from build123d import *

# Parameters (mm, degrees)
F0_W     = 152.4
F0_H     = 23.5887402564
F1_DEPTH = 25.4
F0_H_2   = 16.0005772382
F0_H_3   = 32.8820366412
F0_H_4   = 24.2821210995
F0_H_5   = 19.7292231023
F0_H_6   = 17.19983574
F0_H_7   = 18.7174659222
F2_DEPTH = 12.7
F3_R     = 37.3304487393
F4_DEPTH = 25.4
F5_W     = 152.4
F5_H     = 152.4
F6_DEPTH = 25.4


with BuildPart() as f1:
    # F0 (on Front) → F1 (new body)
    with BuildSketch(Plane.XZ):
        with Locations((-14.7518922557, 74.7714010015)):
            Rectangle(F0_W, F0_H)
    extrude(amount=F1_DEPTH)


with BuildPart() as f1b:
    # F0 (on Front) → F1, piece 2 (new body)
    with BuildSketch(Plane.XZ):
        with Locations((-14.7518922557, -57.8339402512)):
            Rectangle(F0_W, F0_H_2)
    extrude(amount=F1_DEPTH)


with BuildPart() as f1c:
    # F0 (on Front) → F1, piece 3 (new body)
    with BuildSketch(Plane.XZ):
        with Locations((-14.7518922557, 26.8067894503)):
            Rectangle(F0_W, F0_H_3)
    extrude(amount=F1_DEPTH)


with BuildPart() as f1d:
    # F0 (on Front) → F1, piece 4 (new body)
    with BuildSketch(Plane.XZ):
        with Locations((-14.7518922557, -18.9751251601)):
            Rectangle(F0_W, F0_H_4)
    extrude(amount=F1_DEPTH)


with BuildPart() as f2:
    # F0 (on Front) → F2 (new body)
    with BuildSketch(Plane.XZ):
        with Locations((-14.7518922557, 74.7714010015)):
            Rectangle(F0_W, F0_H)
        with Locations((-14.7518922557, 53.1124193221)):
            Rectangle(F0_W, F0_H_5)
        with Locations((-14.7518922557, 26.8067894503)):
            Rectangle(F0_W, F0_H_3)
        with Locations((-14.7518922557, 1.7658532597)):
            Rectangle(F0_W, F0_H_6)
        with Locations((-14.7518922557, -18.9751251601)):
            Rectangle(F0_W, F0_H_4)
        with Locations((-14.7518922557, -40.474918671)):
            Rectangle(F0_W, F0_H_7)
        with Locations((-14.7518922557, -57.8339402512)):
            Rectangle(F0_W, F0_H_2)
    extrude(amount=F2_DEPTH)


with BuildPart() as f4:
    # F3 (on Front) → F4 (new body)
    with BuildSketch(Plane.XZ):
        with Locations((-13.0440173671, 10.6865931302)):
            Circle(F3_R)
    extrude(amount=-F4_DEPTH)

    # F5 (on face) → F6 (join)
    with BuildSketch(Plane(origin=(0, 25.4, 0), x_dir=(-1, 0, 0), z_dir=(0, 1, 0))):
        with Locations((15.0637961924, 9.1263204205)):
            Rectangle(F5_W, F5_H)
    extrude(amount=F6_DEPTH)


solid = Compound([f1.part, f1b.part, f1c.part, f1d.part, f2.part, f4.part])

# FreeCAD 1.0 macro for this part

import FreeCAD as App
import Part
import Sketcher

V = App.Vector
Q = App.Units.Quantity


def add_polygon(sketch, points):
    """Adds a closed chain of lines whose ends are joined by coincident constraints."""
    first, n = sketch.GeometryCount, len(points)
    for a, b in zip(points, points[1:] + points[:1]):
        sketch.addGeometry(Part.LineSegment(App.Vector(*a, 0), App.Vector(*b, 0)), False)
    for i in range(n):
        sketch.addConstraint(Sketcher.Constraint("Coincident", first + i, 2, first + (i + 1) % n, 1))

doc = App.newDocument("Part")
params = doc.addObject("Spreadsheet::Sheet", "Params")
for row, (alias, value) in enumerate([
    ("sketch1_width", "6 in"),
    ("pad1_length", "1 in"),
    ("sketch2_width", "6 in"),
    ("pad2_length", "1 in"),
    ("sketch3_width", "6 in"),
    ("pad3_length", "1 in"),
    ("sketch4_width", "6 in"),
    ("pad4_length", "1 in"),
    ("sketch5_width", "6 in"),
    ("pad5_length", "0.5 in"),
    ("pad6_length", "1 in"),
    ("sketch7_width", "6 in"),
    ("pad7_length", "1 in"),
], start=1):
    params.set(f"A{row}", alias)
    params.set(f"B{row}", "=" + value)
    params.setAlias(f"B{row}", alias)

body = doc.addObject("PartDesign::Body", "Body")

# Sketch on XZ plane
sketch1 = doc.addObject("Sketcher::SketchObject", "Sketch")
body.addObject(sketch1)
sketch1.AttachmentSupport = (doc.XZ_Plane, [""])
sketch1.MapMode = "FlatFace"
add_polygon(sketch1, [(-91, 87), (-91, 63), (61, 63), (61, 87)])  # lines 0-3
sketch1.addConstraint(Sketcher.Constraint("Vertical", 0))
sketch1.addConstraint(Sketcher.Constraint("Horizontal", 1))
sketch1.addConstraint(Sketcher.Constraint("Vertical", 2))
sketch1.addConstraint(Sketcher.Constraint("Horizontal", 3))
sketch1.addConstraint(Sketcher.Constraint("DistanceX", 1, 1, 1, 2, Q("6 in")))
sketch1.addConstraint(Sketcher.Constraint("DistanceY", 0, 2, 0, 1, 23.58874))
sketch1.addConstraint(Sketcher.Constraint("DistanceY", -1, 1, 0, 2, 62.977031))
sketch1.addConstraint(Sketcher.Constraint("DistanceX", 0, 2, -1, 1, 90.951892))
sketch1.setExpression("Constraints[8]", "Params.sketch1_width")
pad1 = doc.addObject("PartDesign::Pad", "Pad")
body.addObject(pad1)
pad1.Profile = sketch1
pad1.setExpression("Length", "Params.pad1_length")
body2 = doc.addObject("PartDesign::Body", "Body001")

# Sketch on XZ plane
sketch2 = doc.addObject("Sketcher::SketchObject", "Sketch001")
body2.addObject(sketch2)
sketch2.AttachmentSupport = (doc.getObject("XZ_Plane001"), [""])
sketch2.MapMode = "FlatFace"
add_polygon(sketch2, [(-91, -50), (-91, -66), (61, -66), (61, -50)])  # lines 0-3
sketch2.addConstraint(Sketcher.Constraint("Vertical", 0))
sketch2.addConstraint(Sketcher.Constraint("Horizontal", 1))
sketch2.addConstraint(Sketcher.Constraint("Vertical", 2))
sketch2.addConstraint(Sketcher.Constraint("Horizontal", 3))
sketch2.addConstraint(Sketcher.Constraint("DistanceX", 1, 1, 1, 2, Q("6 in")))
sketch2.addConstraint(Sketcher.Constraint("DistanceY", 0, 2, 0, 1, 16.000577))
sketch2.addConstraint(Sketcher.Constraint("DistanceY", 0, 2, -1, 1, 65.834229))
sketch2.addConstraint(Sketcher.Constraint("DistanceX", 0, 2, -1, 1, 90.951892))
sketch2.setExpression("Constraints[8]", "Params.sketch2_width")
pad2 = doc.addObject("PartDesign::Pad", "Pad001")
body2.addObject(pad2)
pad2.Profile = sketch2
pad2.setExpression("Length", "Params.pad2_length")
body3 = doc.addObject("PartDesign::Body", "Body002")

# Sketch on XZ plane
sketch3 = doc.addObject("Sketcher::SketchObject", "Sketch002")
body3.addObject(sketch3)
sketch3.AttachmentSupport = (doc.getObject("XZ_Plane002"), [""])
sketch3.MapMode = "FlatFace"
add_polygon(sketch3, [(-91, 43), (-91, 10), (61, 10), (61, 43)])  # lines 0-3
sketch3.addConstraint(Sketcher.Constraint("Vertical", 0))
sketch3.addConstraint(Sketcher.Constraint("Horizontal", 1))
sketch3.addConstraint(Sketcher.Constraint("Vertical", 2))
sketch3.addConstraint(Sketcher.Constraint("Horizontal", 3))
sketch3.addConstraint(Sketcher.Constraint("DistanceX", 1, 1, 1, 2, Q("6 in")))
sketch3.addConstraint(Sketcher.Constraint("DistanceY", 0, 2, 0, 1, 32.882037))
sketch3.addConstraint(Sketcher.Constraint("DistanceY", -1, 1, 0, 2, 10.365771))
sketch3.addConstraint(Sketcher.Constraint("DistanceX", 0, 2, -1, 1, 90.951892))
sketch3.setExpression("Constraints[8]", "Params.sketch3_width")
pad3 = doc.addObject("PartDesign::Pad", "Pad002")
body3.addObject(pad3)
pad3.Profile = sketch3
pad3.setExpression("Length", "Params.pad3_length")
body4 = doc.addObject("PartDesign::Body", "Body003")

# Sketch on XZ plane
sketch4 = doc.addObject("Sketcher::SketchObject", "Sketch003")
body4.addObject(sketch4)
sketch4.AttachmentSupport = (doc.getObject("XZ_Plane003"), [""])
sketch4.MapMode = "FlatFace"
add_polygon(sketch4, [(-91, -7), (-91, -31), (61, -31), (61, -7)])  # lines 0-3
sketch4.addConstraint(Sketcher.Constraint("Vertical", 0))
sketch4.addConstraint(Sketcher.Constraint("Horizontal", 1))
sketch4.addConstraint(Sketcher.Constraint("Vertical", 2))
sketch4.addConstraint(Sketcher.Constraint("Horizontal", 3))
sketch4.addConstraint(Sketcher.Constraint("DistanceX", 1, 1, 1, 2, Q("6 in")))
sketch4.addConstraint(Sketcher.Constraint("DistanceY", 0, 2, 0, 1, 24.282121))
sketch4.addConstraint(Sketcher.Constraint("DistanceX", 0, 2, -1, 1, 90.951892))
sketch4.addConstraint(Sketcher.Constraint("DistanceY", 0, 2, -1, 1, 31.116186))
sketch4.setExpression("Constraints[8]", "Params.sketch4_width")
pad4 = doc.addObject("PartDesign::Pad", "Pad003")
body4.addObject(pad4)
pad4.Profile = sketch4
pad4.setExpression("Length", "Params.pad4_length")
body5 = doc.addObject("PartDesign::Body", "Body004")

# Sketch on XZ plane
sketch5 = doc.addObject("Sketcher::SketchObject", "Sketch004")
body5.addObject(sketch5)
sketch5.AttachmentSupport = (doc.getObject("XZ_Plane004"), [""])
sketch5.MapMode = "FlatFace"
add_polygon(sketch5, [(-91, 87), (-91, -66), (61, -66), (61, 87)])  # lines 0-3
sketch5.addConstraint(Sketcher.Constraint("Vertical", 0))
sketch5.addConstraint(Sketcher.Constraint("Horizontal", 1))
sketch5.addConstraint(Sketcher.Constraint("Vertical", 2))
sketch5.addConstraint(Sketcher.Constraint("Horizontal", 3))
sketch5.addConstraint(Sketcher.Constraint("Equal", 3, 0))
sketch5.addConstraint(Sketcher.Constraint("DistanceX", 1, 1, 1, 2, Q("6 in")))
sketch5.addConstraint(Sketcher.Constraint("DistanceY", 0, 2, -1, 1, 65.834229))
sketch5.addConstraint(Sketcher.Constraint("DistanceX", 0, 2, -1, 1, 90.951892))
sketch5.setExpression("Constraints[9]", "Params.sketch5_width")
pad5 = doc.addObject("PartDesign::Pad", "Pad004")
body5.addObject(pad5)
pad5.Profile = sketch5
pad5.setExpression("Length", "Params.pad5_length")
body6 = doc.addObject("PartDesign::Body", "Body005")

# Sketch on XZ plane
sketch6 = doc.addObject("Sketcher::SketchObject", "Sketch005")
body6.addObject(sketch6)
sketch6.AttachmentSupport = (doc.getObject("XZ_Plane005"), [""])
sketch6.MapMode = "FlatFace"
sketch6.addGeometry(Part.Circle(V(-13, 11, 0), V(0, 0, 1), 37), False)
sketch6.addConstraint(Sketcher.Constraint("Diameter", 0, 74.660897))
sketch6.addConstraint(Sketcher.Constraint("DistanceX", 0, 3, -1, 1, 13.044017))
sketch6.addConstraint(Sketcher.Constraint("DistanceY", -1, 1, 0, 3, 10.686593))
pad6 = doc.addObject("PartDesign::Pad", "Pad005")
body6.addObject(pad6)
pad6.Profile = sketch6
pad6.setExpression("Length", "Params.pad6_length")
pad6.Reversed = True

# Sketch on XZ plane
sketch7 = doc.addObject("Sketcher::SketchObject", "Sketch006")
body6.addObject(sketch7)
sketch7.AttachmentSupport = (doc.getObject("XZ_Plane005"), [""])
sketch7.MapMode = "FlatFace"
sketch7.AttachmentOffset = App.Placement(V(0, 0, -1 * 25.4), App.Rotation())
add_polygon(sketch7, [(61, 85), (61, -67), (-91, -67), (-91, 85)])  # lines 0-3
sketch7.addConstraint(Sketcher.Constraint("Vertical", 0))
sketch7.addConstraint(Sketcher.Constraint("Horizontal", 1))
sketch7.addConstraint(Sketcher.Constraint("Vertical", 2))
sketch7.addConstraint(Sketcher.Constraint("Horizontal", 3))
sketch7.addConstraint(Sketcher.Constraint("Equal", 3, 0))
sketch7.addConstraint(Sketcher.Constraint("DistanceX", 1, 2, 1, 1, Q("6 in")))
sketch7.addConstraint(Sketcher.Constraint("DistanceY", 0, 2, -1, 1, 67.07368))
sketch7.addConstraint(Sketcher.Constraint("DistanceX", -1, 1, 0, 2, 61.136204))
sketch7.setExpression("Constraints[9]", "Params.sketch7_width")
pad7 = doc.addObject("PartDesign::Pad", "Pad006")
body6.addObject(pad7)
pad7.Profile = sketch7
pad7.setExpression("Length", "Params.pad7_length")
pad7.Reversed = True

doc.recompute()
